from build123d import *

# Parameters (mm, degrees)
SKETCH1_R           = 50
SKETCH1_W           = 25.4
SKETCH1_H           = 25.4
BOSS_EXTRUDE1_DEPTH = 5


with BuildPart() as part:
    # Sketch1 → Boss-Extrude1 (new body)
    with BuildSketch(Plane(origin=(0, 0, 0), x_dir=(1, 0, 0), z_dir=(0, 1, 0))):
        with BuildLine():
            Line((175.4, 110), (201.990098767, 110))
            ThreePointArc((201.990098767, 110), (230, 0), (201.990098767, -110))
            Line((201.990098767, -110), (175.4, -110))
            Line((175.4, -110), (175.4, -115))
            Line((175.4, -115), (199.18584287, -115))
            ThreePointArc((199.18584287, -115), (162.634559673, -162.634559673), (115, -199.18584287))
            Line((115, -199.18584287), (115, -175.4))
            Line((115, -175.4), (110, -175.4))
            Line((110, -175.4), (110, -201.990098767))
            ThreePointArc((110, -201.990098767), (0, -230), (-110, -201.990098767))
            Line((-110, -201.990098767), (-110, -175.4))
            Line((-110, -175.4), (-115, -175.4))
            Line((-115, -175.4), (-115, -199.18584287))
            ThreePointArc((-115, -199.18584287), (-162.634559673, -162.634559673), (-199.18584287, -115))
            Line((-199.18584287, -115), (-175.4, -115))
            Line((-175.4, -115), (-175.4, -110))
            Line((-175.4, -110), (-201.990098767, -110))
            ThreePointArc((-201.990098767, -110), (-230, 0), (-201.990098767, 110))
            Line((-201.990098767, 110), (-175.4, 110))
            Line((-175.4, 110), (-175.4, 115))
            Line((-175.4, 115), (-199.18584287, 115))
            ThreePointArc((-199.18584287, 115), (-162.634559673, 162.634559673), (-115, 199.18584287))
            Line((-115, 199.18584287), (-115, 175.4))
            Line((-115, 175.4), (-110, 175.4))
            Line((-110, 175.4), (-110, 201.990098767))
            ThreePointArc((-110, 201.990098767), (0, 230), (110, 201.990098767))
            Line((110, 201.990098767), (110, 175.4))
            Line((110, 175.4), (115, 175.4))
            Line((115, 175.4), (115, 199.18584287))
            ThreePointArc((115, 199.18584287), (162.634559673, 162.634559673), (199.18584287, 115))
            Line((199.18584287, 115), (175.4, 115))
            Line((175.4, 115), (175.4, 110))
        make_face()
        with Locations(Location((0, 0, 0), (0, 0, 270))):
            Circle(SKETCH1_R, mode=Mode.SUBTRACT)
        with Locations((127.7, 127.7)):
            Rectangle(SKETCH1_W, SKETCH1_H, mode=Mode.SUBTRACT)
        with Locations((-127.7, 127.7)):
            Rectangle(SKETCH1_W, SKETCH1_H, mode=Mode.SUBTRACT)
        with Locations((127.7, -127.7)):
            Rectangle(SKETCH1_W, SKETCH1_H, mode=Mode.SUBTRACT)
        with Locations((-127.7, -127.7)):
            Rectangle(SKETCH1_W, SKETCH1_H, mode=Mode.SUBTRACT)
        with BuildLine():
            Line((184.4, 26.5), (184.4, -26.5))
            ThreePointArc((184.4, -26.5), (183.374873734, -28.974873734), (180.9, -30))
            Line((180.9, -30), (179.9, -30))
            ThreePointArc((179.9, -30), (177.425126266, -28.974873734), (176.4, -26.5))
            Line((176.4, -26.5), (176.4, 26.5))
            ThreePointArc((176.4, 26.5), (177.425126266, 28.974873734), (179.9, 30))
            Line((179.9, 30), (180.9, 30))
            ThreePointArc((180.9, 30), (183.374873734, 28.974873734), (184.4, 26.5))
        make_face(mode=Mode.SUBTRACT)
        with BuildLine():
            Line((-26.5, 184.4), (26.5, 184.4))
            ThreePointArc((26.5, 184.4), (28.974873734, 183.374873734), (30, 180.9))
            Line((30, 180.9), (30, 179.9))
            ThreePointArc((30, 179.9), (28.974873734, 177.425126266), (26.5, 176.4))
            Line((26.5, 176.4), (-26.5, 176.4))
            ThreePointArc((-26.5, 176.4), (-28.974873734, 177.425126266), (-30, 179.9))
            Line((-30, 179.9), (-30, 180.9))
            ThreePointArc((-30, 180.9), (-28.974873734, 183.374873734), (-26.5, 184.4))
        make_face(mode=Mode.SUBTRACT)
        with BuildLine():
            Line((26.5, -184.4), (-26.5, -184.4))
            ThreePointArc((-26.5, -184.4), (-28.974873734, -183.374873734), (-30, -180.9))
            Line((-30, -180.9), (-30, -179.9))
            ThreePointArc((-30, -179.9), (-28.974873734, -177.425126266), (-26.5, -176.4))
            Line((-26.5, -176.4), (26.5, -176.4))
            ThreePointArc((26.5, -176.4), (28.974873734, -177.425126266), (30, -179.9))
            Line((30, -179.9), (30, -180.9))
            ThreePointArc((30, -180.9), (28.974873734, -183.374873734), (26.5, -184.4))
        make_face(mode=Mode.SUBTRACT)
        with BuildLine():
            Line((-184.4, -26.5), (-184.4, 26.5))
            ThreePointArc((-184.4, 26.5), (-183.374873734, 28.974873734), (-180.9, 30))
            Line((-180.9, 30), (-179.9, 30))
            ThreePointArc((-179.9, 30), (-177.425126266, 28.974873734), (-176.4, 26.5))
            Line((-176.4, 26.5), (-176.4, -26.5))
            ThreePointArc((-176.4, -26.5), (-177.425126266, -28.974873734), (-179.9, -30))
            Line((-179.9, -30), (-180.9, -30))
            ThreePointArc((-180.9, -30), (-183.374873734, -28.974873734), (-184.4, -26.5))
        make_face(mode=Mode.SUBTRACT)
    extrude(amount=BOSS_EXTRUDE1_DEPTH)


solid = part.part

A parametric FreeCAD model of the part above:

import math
import FreeCAD as App
import Part
import Sketcher

V = App.Vector
Q = App.Units.Quantity


def add_polygon(sketch, points):
    """Adds a closed chain of lines whose ends are joined by coincident constraints."""
    first, n = sketch.GeometryCount, len(points)
    for a, b in zip(points, points[1:] + points[:1]):
        sketch.addGeometry(Part.LineSegment(App.Vector(*a, 0), App.Vector(*b, 0)), False)
    for i in range(n):
        sketch.addConstraint(Sketcher.Constraint("Coincident", first + i, 2, first + (i + 1) % n, 1))

doc = App.newDocument("Part")
params = doc.addObject("Spreadsheet::Sheet", "Params")
for row, (alias, value) in enumerate([
    ("sketch1_diameter", "100 mm"),
    ("sketch1_radius", "230 mm"),
    ("sketch1_radius2", "3.5 mm"),
    ("sketch1_width", "5 mm"),
    ("sketch1_width2", "53 mm"),
    ("pad1_length", "5 mm"),
], start=1):
    params.set(f"A{row}", alias)
    params.set(f"B{row}", "=" + value)
    params.setAlias(f"B{row}", alias)

body = doc.addObject("PartDesign::Body", "Body")

sketch1 = body.newObject("Sketcher::SketchObject", "Sketch")
sketch1.AttachmentSupport = (doc.getObject("XZ_Plane"), [""])
sketch1.MapMode = "FlatFace"
sketch1.addGeometry(Part.LineSegment(V(202, -110, 0), V(175.4, -110, 0)), False)
sketch1.addGeometry(Part.LineSegment(V(175.4, -110, 0), V(175.4, -115, 0)), False)
sketch1.addGeometry(Part.LineSegment(V(175.4, -115, 0), V(199.2, -115, 0)), False)
sketch1.addGeometry(Part.ArcOfCircle(Part.Circle(V(0, 0, 0), V(0, 0, 1), 230), math.radians(-60), math.radians(-30)), False)
sketch1.addGeometry(Part.LineSegment(V(115, -199.2, 0), V(115, -175.4, 0)), False)
sketch1.addGeometry(Part.LineSegment(V(115, -175.4, 0), V(110, -175.4, 0)), False)
sketch1.addGeometry(Part.LineSegment(V(110, -175.4, 0), V(110, -202, 0)), False)
sketch1.addGeometry(Part.ArcOfCircle(Part.Circle(V(0, 0, 0), V(0, 0, 1), 230), math.radians(-119), math.radians(-61)), False)
sketch1.addGeometry(Part.LineSegment(V(-110, -202, 0), V(-110, -175.4, 0)), False)
sketch1.addGeometry(Part.LineSegment(V(-110, -175.4, 0), V(-115, -175.4, 0)), False)
sketch1.addGeometry(Part.LineSegment(V(-115, -175.4, 0), V(-115, -199.2, 0)), False)
sketch1.addGeometry(Part.ArcOfCircle(Part.Circle(V(0, 0, 0), V(0, 0, 1), 230), math.radians(-150), math.radians(-120)), False)
sketch1.addGeometry(Part.LineSegment(V(-199.2, -115, 0), V(-175.4, -115, 0)), False)
sketch1.addGeometry(Part.LineSegment(V(-175.4, -115, 0), V(-175.4, -110, 0)), False)
sketch1.addGeometry(Part.LineSegment(V(-175.4, -110, 0), V(-202, -110, 0)), False)
sketch1.addGeometry(Part.ArcOfCircle(Part.Circle(V(0, 0, 0), V(0, 0, 1), 230), math.radians(151), math.radians(209)), False)
sketch1.addGeometry(Part.LineSegment(V(-202, 110, 0), V(-175.4, 110, 0)), False)
sketch1.addGeometry(Part.LineSegment(V(-175.4, 110, 0), V(-175.4, 115, 0)), False)
sketch1.addGeometry(Part.LineSegment(V(-175.4, 115, 0), V(-199.2, 115, 0)), False)
sketch1.addGeometry(Part.ArcOfCircle(Part.Circle(V(0, 0, 0), V(0, 0, 1), 230), math.radians(120), math.radians(150)), False)
sketch1.addGeometry(Part.LineSegment(V(-115, 199.2, 0), V(-115, 175.4, 0)), False)
sketch1.addGeometry(Part.LineSegment(V(-115, 175.4, 0), V(-110, 175.4, 0)), False)
sketch1.addGeometry(Part.LineSegment(V(-110, 175.4, 0), V(-110, 202, 0)), False)
sketch1.addGeometry(Part.ArcOfCircle(Part.Circle(V(0, 0, 0), V(0, 0, 1), 230), math.radians(61), math.radians(119)), False)
sketch1.addGeometry(Part.LineSegment(V(110, 202, 0), V(110, 175.4, 0)), False)
sketch1.addGeometry(Part.LineSegment(V(110, 175.4, 0), V(115, 175.4, 0)), False)
sketch1.addGeometry(Part.LineSegment(V(115, 175.4, 0), V(115, 199.2, 0)), False)
sketch1.addGeometry(Part.ArcOfCircle(Part.Circle(V(0, 0, 0), V(0, 0, 1), 230), math.radians(30), math.radians(60)), False)
sketch1.addGeometry(Part.LineSegment(V(199.2, 115, 0), V(175.4, 115, 0)), False)
sketch1.addGeometry(Part.LineSegment(V(175.4, 115, 0), V(175.4, 110, 0)), False)
sketch1.addGeometry(Part.LineSegment(V(175.4, 110, 0), V(202, 110, 0)), False)
sketch1.addGeometry(Part.ArcOfCircle(Part.Circle(V(0, 0, 0), V(0, 0, 1), 230), math.radians(-29), math.radians(29)), False)
add_polygon(sketch1, [(115, 140.4), (115, 115), (140.4, 115), (140.4, 140.4)])
sketch1.addGeometry(Part.LineSegment(V(26.5, 184.4, 0), V(-26.5, 184.4, 0)), False)
sketch1.addGeometry(Part.ArcOfCircle(Part.Circle(V(-26.5, 180.9, 0), V(0, 0, 1), 3.5), math.radians(90), math.radians(180)), False)
sketch1.addGeometry(Part.LineSegment(V(-30, 180.9, 0), V(-30, 179.9, 0)), False)
sketch1.addGeometry(Part.ArcOfCircle(Part.Circle(V(-26.5, 179.9, 0), V(0, 0, 1), 3.5), math.radians(-180), math.radians(-90)), False)
sketch1.addGeometry(Part.LineSegment(V(-26.5, 176.4, 0), V(26.5, 176.4, 0)), False)
sketch1.addGeometry(Part.ArcOfCircle(Part.Circle(V(26.5, 179.9, 0), V(0, 0, 1), 3.5), math.radians(-90), math.radians(0)), False)
sketch1.addGeometry(Part.LineSegment(V(30, 179.9, 0), V(30, 180.9, 0)), False)
sketch1.addGeometry(Part.ArcOfCircle(Part.Circle(V(26.5, 180.9, 0), V(0, 0, 1), 3.5), math.radians(0), math.radians(90)), False)
add_polygon(sketch1, [(-140.4, 140.4), (-140.4, 115), (-115, 115), (-115, 140.4)])
sketch1.addGeometry(Part.LineSegment(V(184.4, -26.5, 0), V(184.4, 26.5, 0)), False)
sketch1.addGeometry(Part.ArcOfCircle(Part.Circle(V(180.9, 26.5, 0), V(0, 0, 1), 3.5), math.radians(0), math.radians(90)), False)
sketch1.addGeometry(Part.LineSegment(V(180.9, 30, 0), V(179.9, 30, 0)), False)
sketch1.addGeometry(Part.ArcOfCircle(Part.Circle(V(179.9, 26.5, 0), V(0, 0, 1), 3.5), math.radians(90), math.radians(180)), False)
sketch1.addGeometry(Part.LineSegment(V(176.4, 26.5, 0), V(176.4, -26.5, 0)), False)
sketch1.addGeometry(Part.ArcOfCircle(Part.Circle(V(179.9, -26.5, 0), V(0, 0, 1), 3.5), math.radians(-180), math.radians(-90)), False)
sketch1.addGeometry(Part.LineSegment(V(179.9, -30, 0), V(180.9, -30, 0)), False)
sketch1.addGeometry(Part.ArcOfCircle(Part.Circle(V(180.9, -26.5, 0), V(0, 0, 1), 3.5), math.radians(-90), math.radians(0)), False)
add_polygon(sketch1, [(115, -115), (115, -140.4), (140.4, -140.4), (140.4, -115)])
sketch1.addGeometry(Part.Circle(V(0, 0, 0), V(0, 0, 1), 50), False)
sketch1.addGeometry(Part.LineSegment(V(-184.4, 26.5, 0), V(-184.4, -26.5, 0)), False)
sketch1.addGeometry(Part.ArcOfCircle(Part.Circle(V(-180.9, -26.5, 0), V(0, 0, 1), 3.5), math.radians(-180), math.radians(-90)), False)
sketch1.addGeometry(Part.LineSegment(V(-180.9, -30, 0), V(-179.9, -30, 0)), False)
sketch1.addGeometry(Part.ArcOfCircle(Part.Circle(V(-179.9, -26.5, 0), V(0, 0, 1), 3.5), math.radians(-90), math.radians(0)), False)
sketch1.addGeometry(Part.LineSegment(V(-176.4, -26.5, 0), V(-176.4, 26.5, 0)), False)
sketch1.addGeometry(Part.ArcOfCircle(Part.Circle(V(-179.9, 26.5, 0), V(0, 0, 1), 3.5), math.radians(0), math.radians(90)), False)
sketch1.addGeometry(Part.LineSegment(V(-179.9, 30, 0), V(-180.9, 30, 0)), False)
sketch1.addGeometry(Part.ArcOfCircle(Part.Circle(V(-180.9, 26.5, 0), V(0, 0, 1), 3.5), math.radians(90), math.radians(180)), False)
sketch1.addGeometry(Part.LineSegment(V(-26.5, -184.4, 0), V(26.5, -184.4, 0)), False)
sketch1.addGeometry(Part.ArcOfCircle(Part.Circle(V(26.5, -180.9, 0), V(0, 0, 1), 3.5), math.radians(-90), math.radians(0)), False)
sketch1.addGeometry(Part.LineSegment(V(30, -180.9, 0), V(30, -179.9, 0)), False)
sketch1.addGeometry(Part.ArcOfCircle(Part.Circle(V(26.5, -179.9, 0), V(0, 0, 1), 3.5), math.radians(0), math.radians(90)), False)
sketch1.addGeometry(Part.LineSegment(V(26.5, -176.4, 0), V(-26.5, -176.4, 0)), False)
sketch1.addGeometry(Part.ArcOfCircle(Part.Circle(V(-26.5, -179.9, 0), V(0, 0, 1), 3.5), math.radians(90), math.radians(180)), False)
sketch1.addGeometry(Part.LineSegment(V(-30, -179.9, 0), V(-30, -180.9, 0)), False)
sketch1.addGeometry(Part.ArcOfCircle(Part.Circle(V(-26.5, -180.9, 0), V(0, 0, 1), 3.5), math.radians(-180), math.radians(-90)), False)
add_polygon(sketch1, [(-140.4, -115), (-140.4, -140.4), (-115, -140.4), (-115, -115)])
sketch1.addConstraint([
    Sketcher.Constraint("Coincident", 0, 2, 1, 1),
    Sketcher.Constraint("Coincident", 1, 2, 2, 1),
    Sketcher.Constraint("Coincident", 2, 2, 3, 2),
    Sketcher.Constraint("Coincident", 3, 1, 4, 1),
    Sketcher.Constraint("Coincident", 4, 2, 5, 1),
    Sketcher.Constraint("Coincident", 5, 2, 6, 1),
    Sketcher.Constraint("Coincident", 6, 2, 7, 2),
    Sketcher.Constraint("Coincident", 7, 1, 8, 1),
    Sketcher.Constraint("Coincident", 8, 2, 9, 1),
    Sketcher.Constraint("Coincident", 9, 2, 10, 1),
    Sketcher.Constraint("Coincident", 10, 2, 11, 2),
    Sketcher.Constraint("Coincident", 11, 1, 12, 1),
    Sketcher.Constraint("Coincident", 12, 2, 13, 1),
    Sketcher.Constraint("Coincident", 13, 2, 14, 1),
    Sketcher.Constraint("Coincident", 14, 2, 15, 2),
    Sketcher.Constraint("Coincident", 15, 1, 16, 1),
    Sketcher.Constraint("Coincident", 16, 2, 17, 1),
    Sketcher.Constraint("Coincident", 17, 2, 18, 1),
    Sketcher.Constraint("Coincident", 18, 2, 19, 2),
    Sketcher.Constraint("Coincident", 19, 1, 20, 1),
    Sketcher.Constraint("Coincident", 20, 2, 21, 1),
    Sketcher.Constraint("Coincident", 21, 2, 22, 1),
    Sketcher.Constraint("Coincident", 22, 2, 23, 2),
    Sketcher.Constraint("Coincident", 23, 1, 24, 1),
    Sketcher.Constraint("Coincident", 24, 2, 25, 1),
    Sketcher.Constraint("Coincident", 25, 2, 26, 1),
    Sketcher.Constraint("Coincident", 26, 2, 27, 2),
    Sketcher.Constraint("Coincident", 27, 1, 28, 1),
    Sketcher.Constraint("Coincident", 28, 2, 29, 1),
    Sketcher.Constraint("Coincident", 29, 2, 30, 1),
    Sketcher.Constraint("Coincident", 30, 2, 31, 2),
    Sketcher.Constraint("Coincident", 31, 1, 0, 1),
    Sketcher.Constraint("Tangent", 36, 2, 37, 1),
    Sketcher.Constraint("Tangent", 37, 2, 38, 1),
    Sketcher.Constraint("Tangent", 38, 2, 39, 1),
    Sketcher.Constraint("Tangent", 39, 2, 40, 1),
    Sketcher.Constraint("Tangent", 40, 2, 41, 1),
    Sketcher.Constraint("Tangent", 41, 2, 42, 1),
    Sketcher.Constraint("Tangent", 42, 2, 43, 1),
    Sketcher.Constraint("Tangent", 43, 2, 36, 1),
    Sketcher.Constraint("Tangent", 48, 2, 49, 1),
    Sketcher.Constraint("Tangent", 49, 2, 50, 1),
    Sketcher.Constraint("Tangent", 50, 2, 51, 1),
    Sketcher.Constraint("Tangent", 51, 2, 52, 1),
    Sketcher.Constraint("Tangent", 52, 2, 53, 1),
    Sketcher.Constraint("Tangent", 53, 2, 54, 1),
    Sketcher.Constraint("Tangent", 54, 2, 55, 1),
    Sketcher.Constraint("Tangent", 55, 2, 48, 1),
    Sketcher.Constraint("Tangent", 61, 2, 62, 1),
    Sketcher.Constraint("Tangent", 62, 2, 63, 1),
    Sketcher.Constraint("Tangent", 63, 2, 64, 1),
    Sketcher.Constraint("Tangent", 64, 2, 65, 1),
    Sketcher.Constraint("Tangent", 65, 2, 66, 1),
    Sketcher.Constraint("Tangent", 66, 2, 67, 1),
    Sketcher.Constraint("Tangent", 67, 2, 68, 1),
    Sketcher.Constraint("Tangent", 68, 2, 61, 1),
    Sketcher.Constraint("Tangent", 69, 2, 70, 1),
    Sketcher.Constraint("Tangent", 70, 2, 71, 1),
    Sketcher.Constraint("Tangent", 71, 2, 72, 1),
    Sketcher.Constraint("Tangent", 72, 2, 73, 1),
    Sketcher.Constraint("Tangent", 73, 2, 74, 1),
    Sketcher.Constraint("Tangent", 74, 2, 75, 1),
    Sketcher.Constraint("Tangent", 75, 2, 76, 1),
    Sketcher.Constraint("Tangent", 76, 2, 69, 1),
    Sketcher.Constraint("Horizontal", 0),
    Sketcher.Constraint("Vertical", 1),
    Sketcher.Constraint("Horizontal", 2),
    Sketcher.Constraint("Vertical", 4),
    Sketcher.Constraint("Horizontal", 5),
    Sketcher.Constraint("Vertical", 6),
    Sketcher.Constraint("Vertical", 8),
    Sketcher.Constraint("Horizontal", 9),
    Sketcher.Constraint("Vertical", 10),
    Sketcher.Constraint("Horizontal", 12),
    Sketcher.Constraint("Vertical", 13),
    Sketcher.Constraint("Horizontal", 14),
    Sketcher.Constraint("Horizontal", 16),
    Sketcher.Constraint("Vertical", 17),
    Sketcher.Constraint("Horizontal", 18),
    Sketcher.Constraint("Vertical", 20),
    Sketcher.Constraint("Horizontal", 21),
    Sketcher.Constraint("Vertical", 22),
    Sketcher.Constraint("Vertical", 24),
    Sketcher.Constraint("Horizontal", 25),
    Sketcher.Constraint("Vertical", 26),
    Sketcher.Constraint("Horizontal", 28),
    Sketcher.Constraint("Vertical", 29),
    Sketcher.Constraint("Horizontal", 30),
    Sketcher.Constraint("Vertical", 32),
    Sketcher.Constraint("Horizontal", 33),
    Sketcher.Constraint("Vertical", 34),
    Sketcher.Constraint("Horizontal", 35),
    Sketcher.Constraint("Horizontal", 36),
    Sketcher.Constraint("Vertical", 38),
    Sketcher.Constraint("Horizontal", 40),
    Sketcher.Constraint("Vertical", 42),
    Sketcher.Constraint("Vertical", 44),
    Sketcher.Constraint("Horizontal", 45),
    Sketcher.Constraint("Vertical", 46),
    Sketcher.Constraint("Horizontal", 47),
    Sketcher.Constraint("Vertical", 48),
    Sketcher.Constraint("Horizontal", 50),
    Sketcher.Constraint("Vertical", 52),
    Sketcher.Constraint("Horizontal", 54),
    Sketcher.Constraint("Vertical", 56),
    Sketcher.Constraint("Horizontal", 57),
    Sketcher.Constraint("Vertical", 58),
    Sketcher.Constraint("Horizontal", 59),
    Sketcher.Constraint("Vertical", 61),
    Sketcher.Constraint("Horizontal", 63),
    Sketcher.Constraint("Vertical", 65),
    Sketcher.Constraint("Horizontal", 67),
    Sketcher.Constraint("Horizontal", 69),
    Sketcher.Constraint("Vertical", 71),
    Sketcher.Constraint("Horizontal", 73),
    Sketcher.Constraint("Vertical", 75),
    Sketcher.Constraint("Vertical", 77),
    Sketcher.Constraint("Horizontal", 78),
    Sketcher.Constraint("Vertical", 79),
    Sketcher.Constraint("Horizontal", 80),
    Sketcher.Constraint("Coincident", 3, 3, -1, 1),
    Sketcher.Constraint("Coincident", 7, 3, -1, 1),
    Sketcher.Constraint("Coincident", 11, 3, -1, 1),
    Sketcher.Constraint("Coincident", 15, 3, -1, 1),
    Sketcher.Constraint("Coincident", 19, 3, -1, 1),
    Sketcher.Constraint("Coincident", 23, 3, -1, 1),
    Sketcher.Constraint("Coincident", 27, 3, -1, 1),
    Sketcher.Constraint("Coincident", 31, 3, -1, 1),
    Sketcher.Constraint("Coincident", 60, 3, -1, 1),
    Sketcher.Constraint("Equal", 3, 7),
    Sketcher.Constraint("Equal", 7, 11),
    Sketcher.Constraint("Equal", 11, 15),
    Sketcher.Constraint("Equal", 15, 19),
    Sketcher.Constraint("Equal", 19, 23),
    Sketcher.Constraint("Equal", 23, 27),
    Sketcher.Constraint("Equal", 27, 31),
    Sketcher.Constraint("Equal", 37, 39),
    Sketcher.Constraint("Equal", 39, 41),
    Sketcher.Constraint("Equal", 41, 43),
    Sketcher.Constraint("Equal", 43, 49),
    Sketcher.Constraint("Equal", 49, 51),
    Sketcher.Constraint("Equal", 51, 53),
    Sketcher.Constraint("Equal", 53, 55),
    Sketcher.Constraint("Equal", 55, 62),
    Sketcher.Constraint("Equal", 62, 64),
    Sketcher.Constraint("Equal", 64, 66),
    Sketcher.Constraint("Equal", 66, 68),
    Sketcher.Constraint("Equal", 68, 70),
    Sketcher.Constraint("Equal", 70, 72),
    Sketcher.Constraint("Equal", 72, 74),
    Sketcher.Constraint("Equal", 74, 76),
    Sketcher.Constraint("Symmetric", 49, 3, 62, 3, -1, 1),
    Sketcher.Constraint("Symmetric", 53, 3, 66, 3, -1, 1),
    Sketcher.Constraint("Symmetric", 37, 3, 70, 3, -1, 1),
    Sketcher.Constraint("Symmetric", 41, 3, 74, 3, -1, 1),
    Sketcher.Constraint("Symmetric", 0, 2, 16, 2, -1, 1),
    Sketcher.Constraint("Symmetric", 4, 2, 20, 2, -1, 1),
    Sketcher.Constraint("Symmetric", 8, 2, 24, 2, -1, 1),
    Sketcher.Constraint("Symmetric", 12, 2, 28, 2, -1, 1),
    Sketcher.Constraint("Symmetric", 46, 2, 56, 2, -1, 1),
    Sketcher.Constraint("Symmetric", 44, 2, 58, 2, -1, 1),
    Sketcher.Constraint("Symmetric", 34, 2, 77, 2, -1, 1),
    Sketcher.Constraint("Symmetric", 32, 2, 79, 2, -1, 1),
    Sketcher.Constraint("Symmetric", 5, 2, 8, 2, -2),
    Sketcher.Constraint("Symmetric", 1, 2, 12, 2, -2),
    Sketcher.Constraint("Symmetric", 33, 2, 44, 2, -2),
    Sketcher.Constraint("Symmetric", 35, 2, 46, 2, -2),
    Sketcher.Constraint("Horizontal", 55, 3, 62, 3),
    Sketcher.Constraint("Horizontal", 3, 1, 10, 2),
    Sketcher.Constraint("Horizontal", 0, 2, 13, 2),
    Sketcher.Constraint("Horizontal", 22, 2, 23, 1),
    Sketcher.Constraint("Horizontal", 19, 1, 26, 2),
    Sketcher.Constraint("Horizontal", 18, 2, 27, 1),
    Sketcher.Constraint("Horizontal", 16, 2, 29, 2),
    Sketcher.Constraint("Horizontal", 28, 2, 32, 2),
    Sketcher.Constraint("Vertical", 43, 3, 70, 3),
    Sketcher.Constraint("Vertical", 26, 2, 32, 2),
    Sketcher.Constraint("Equal", 25, 1),
    Sketcher.Constraint("Equal", 28, 4),
    Sketcher.Constraint("Equal", 30, 6),
    Sketcher.Constraint("Equal", 80, 32),
    Sketcher.Constraint("Equal", 67, 38),
    Sketcher.Constraint("Equal", 73, 48),
    Sketcher.Constraint("Diameter", 60, Q("100 mm")),
    Sketcher.Constraint("Radius", 3, Q("230 mm")),
    Sketcher.Constraint("Radius", 37, Q("3.5 mm")),
    Sketcher.Constraint("DistanceX", 5, 2, 5, 1, Q("5 mm")),
    Sketcher.Constraint("DistanceX", 36, 2, 36, 1, Q("53 mm")),
    Sketcher.Constraint("DistanceX", 50, 2, 50, 1, Q("1 mm")),
    Sketcher.Constraint("DistanceX", 33, 1, 33, 2, Q("25.4 mm")),
    Sketcher.Constraint("DistanceY", 0, 2, -1, 1, Q("110 mm")),
    Sketcher.Constraint("DistanceY", -1, 1, 37, 3, Q("180.9 mm")),
    Sketcher.Constraint("DistanceX", -1, 1, 49, 3, Q("180.9 mm")),
    Sketcher.Constraint("DistanceX", -1, 1, 0, 2, Q("175.4 mm")),
])
sketch1.setExpression("Constraints[199]", "Params.sketch1_diameter")
sketch1.setExpression("Constraints[200]", "Params.sketch1_radius")
sketch1.setExpression("Constraints[201]", "Params.sketch1_radius2")
sketch1.setExpression("Constraints[202]", "Params.sketch1_width")
sketch1.setExpression("Constraints[203]", "Params.sketch1_width2")
pad1 = body.newObject("PartDesign::Pad", "Pad")
pad1.Profile = sketch1
pad1.setExpression("Length", "Params.pad1_length")
pad1.Reversed = True

doc.recompute()
